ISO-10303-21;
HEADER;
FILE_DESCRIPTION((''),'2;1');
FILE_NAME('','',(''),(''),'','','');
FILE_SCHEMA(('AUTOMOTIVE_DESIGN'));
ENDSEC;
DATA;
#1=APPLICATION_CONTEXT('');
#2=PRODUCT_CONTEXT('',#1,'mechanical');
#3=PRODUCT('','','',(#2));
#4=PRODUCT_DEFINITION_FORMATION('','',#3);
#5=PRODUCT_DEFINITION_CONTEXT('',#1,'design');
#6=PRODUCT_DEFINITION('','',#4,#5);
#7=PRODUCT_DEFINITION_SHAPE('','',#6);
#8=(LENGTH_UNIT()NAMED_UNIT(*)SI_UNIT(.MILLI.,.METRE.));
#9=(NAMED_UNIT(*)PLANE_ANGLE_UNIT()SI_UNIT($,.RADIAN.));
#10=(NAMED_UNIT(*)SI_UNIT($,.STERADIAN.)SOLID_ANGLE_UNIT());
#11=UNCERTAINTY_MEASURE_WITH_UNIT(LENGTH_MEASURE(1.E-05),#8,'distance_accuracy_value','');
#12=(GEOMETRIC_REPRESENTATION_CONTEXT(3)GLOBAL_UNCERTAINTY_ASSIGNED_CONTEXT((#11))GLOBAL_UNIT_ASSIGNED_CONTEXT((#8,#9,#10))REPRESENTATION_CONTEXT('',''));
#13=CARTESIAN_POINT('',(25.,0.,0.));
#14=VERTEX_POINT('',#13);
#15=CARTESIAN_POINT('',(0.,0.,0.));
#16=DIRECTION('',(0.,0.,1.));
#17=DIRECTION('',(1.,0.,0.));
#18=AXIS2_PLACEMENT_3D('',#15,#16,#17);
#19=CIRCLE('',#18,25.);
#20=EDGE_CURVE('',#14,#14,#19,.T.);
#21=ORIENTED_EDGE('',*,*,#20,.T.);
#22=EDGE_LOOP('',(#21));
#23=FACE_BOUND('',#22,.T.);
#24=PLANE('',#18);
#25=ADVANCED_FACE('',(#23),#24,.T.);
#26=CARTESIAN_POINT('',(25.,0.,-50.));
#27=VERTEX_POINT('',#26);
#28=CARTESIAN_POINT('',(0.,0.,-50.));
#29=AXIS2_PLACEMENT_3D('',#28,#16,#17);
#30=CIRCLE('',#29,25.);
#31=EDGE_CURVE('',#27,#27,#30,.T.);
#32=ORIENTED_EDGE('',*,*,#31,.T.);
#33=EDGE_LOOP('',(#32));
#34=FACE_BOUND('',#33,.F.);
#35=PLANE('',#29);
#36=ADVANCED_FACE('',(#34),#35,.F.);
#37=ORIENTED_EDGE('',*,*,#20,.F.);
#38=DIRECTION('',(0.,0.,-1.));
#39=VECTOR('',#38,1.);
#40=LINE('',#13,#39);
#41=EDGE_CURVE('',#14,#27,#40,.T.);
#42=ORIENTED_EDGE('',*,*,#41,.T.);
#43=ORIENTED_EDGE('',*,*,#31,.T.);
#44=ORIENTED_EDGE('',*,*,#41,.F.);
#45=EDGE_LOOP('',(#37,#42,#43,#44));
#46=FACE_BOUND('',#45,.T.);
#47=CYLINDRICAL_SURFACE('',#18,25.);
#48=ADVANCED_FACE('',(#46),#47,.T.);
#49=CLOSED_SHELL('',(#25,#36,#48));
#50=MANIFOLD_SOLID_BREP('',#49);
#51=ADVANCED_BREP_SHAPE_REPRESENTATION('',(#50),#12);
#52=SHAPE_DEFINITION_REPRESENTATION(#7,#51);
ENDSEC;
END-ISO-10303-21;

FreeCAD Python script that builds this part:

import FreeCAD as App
import Part
import Sketcher
Q = App.Units.Quantity

doc = App.newDocument("Part")
body = doc.addObject("PartDesign::Body", "Body")

# Sketch on XY plane
sketch1 = doc.addObject("Sketcher::SketchObject", "Sketch")
body.addObject(sketch1)
sketch1.AttachmentSupport = (doc.XY_Plane, [""])
sketch1.MapMode = "FlatFace"
sketch1.addGeometry(Part.Circle(App.Vector(0, 0, 0), App.Vector(0, 0, 1), 25), False)
sketch1.addConstraint([
    Sketcher.Constraint("Coincident", 0, 3, -1, 1),
    Sketcher.Constraint("Diameter", 0, Q("50 mm")),
])
pad1 = doc.addObject("PartDesign::Pad", "Pad")
body.addObject(pad1)
pad1.Profile = sketch1
pad1.Length = 50
pad1.Reversed = True

doc.recompute()
